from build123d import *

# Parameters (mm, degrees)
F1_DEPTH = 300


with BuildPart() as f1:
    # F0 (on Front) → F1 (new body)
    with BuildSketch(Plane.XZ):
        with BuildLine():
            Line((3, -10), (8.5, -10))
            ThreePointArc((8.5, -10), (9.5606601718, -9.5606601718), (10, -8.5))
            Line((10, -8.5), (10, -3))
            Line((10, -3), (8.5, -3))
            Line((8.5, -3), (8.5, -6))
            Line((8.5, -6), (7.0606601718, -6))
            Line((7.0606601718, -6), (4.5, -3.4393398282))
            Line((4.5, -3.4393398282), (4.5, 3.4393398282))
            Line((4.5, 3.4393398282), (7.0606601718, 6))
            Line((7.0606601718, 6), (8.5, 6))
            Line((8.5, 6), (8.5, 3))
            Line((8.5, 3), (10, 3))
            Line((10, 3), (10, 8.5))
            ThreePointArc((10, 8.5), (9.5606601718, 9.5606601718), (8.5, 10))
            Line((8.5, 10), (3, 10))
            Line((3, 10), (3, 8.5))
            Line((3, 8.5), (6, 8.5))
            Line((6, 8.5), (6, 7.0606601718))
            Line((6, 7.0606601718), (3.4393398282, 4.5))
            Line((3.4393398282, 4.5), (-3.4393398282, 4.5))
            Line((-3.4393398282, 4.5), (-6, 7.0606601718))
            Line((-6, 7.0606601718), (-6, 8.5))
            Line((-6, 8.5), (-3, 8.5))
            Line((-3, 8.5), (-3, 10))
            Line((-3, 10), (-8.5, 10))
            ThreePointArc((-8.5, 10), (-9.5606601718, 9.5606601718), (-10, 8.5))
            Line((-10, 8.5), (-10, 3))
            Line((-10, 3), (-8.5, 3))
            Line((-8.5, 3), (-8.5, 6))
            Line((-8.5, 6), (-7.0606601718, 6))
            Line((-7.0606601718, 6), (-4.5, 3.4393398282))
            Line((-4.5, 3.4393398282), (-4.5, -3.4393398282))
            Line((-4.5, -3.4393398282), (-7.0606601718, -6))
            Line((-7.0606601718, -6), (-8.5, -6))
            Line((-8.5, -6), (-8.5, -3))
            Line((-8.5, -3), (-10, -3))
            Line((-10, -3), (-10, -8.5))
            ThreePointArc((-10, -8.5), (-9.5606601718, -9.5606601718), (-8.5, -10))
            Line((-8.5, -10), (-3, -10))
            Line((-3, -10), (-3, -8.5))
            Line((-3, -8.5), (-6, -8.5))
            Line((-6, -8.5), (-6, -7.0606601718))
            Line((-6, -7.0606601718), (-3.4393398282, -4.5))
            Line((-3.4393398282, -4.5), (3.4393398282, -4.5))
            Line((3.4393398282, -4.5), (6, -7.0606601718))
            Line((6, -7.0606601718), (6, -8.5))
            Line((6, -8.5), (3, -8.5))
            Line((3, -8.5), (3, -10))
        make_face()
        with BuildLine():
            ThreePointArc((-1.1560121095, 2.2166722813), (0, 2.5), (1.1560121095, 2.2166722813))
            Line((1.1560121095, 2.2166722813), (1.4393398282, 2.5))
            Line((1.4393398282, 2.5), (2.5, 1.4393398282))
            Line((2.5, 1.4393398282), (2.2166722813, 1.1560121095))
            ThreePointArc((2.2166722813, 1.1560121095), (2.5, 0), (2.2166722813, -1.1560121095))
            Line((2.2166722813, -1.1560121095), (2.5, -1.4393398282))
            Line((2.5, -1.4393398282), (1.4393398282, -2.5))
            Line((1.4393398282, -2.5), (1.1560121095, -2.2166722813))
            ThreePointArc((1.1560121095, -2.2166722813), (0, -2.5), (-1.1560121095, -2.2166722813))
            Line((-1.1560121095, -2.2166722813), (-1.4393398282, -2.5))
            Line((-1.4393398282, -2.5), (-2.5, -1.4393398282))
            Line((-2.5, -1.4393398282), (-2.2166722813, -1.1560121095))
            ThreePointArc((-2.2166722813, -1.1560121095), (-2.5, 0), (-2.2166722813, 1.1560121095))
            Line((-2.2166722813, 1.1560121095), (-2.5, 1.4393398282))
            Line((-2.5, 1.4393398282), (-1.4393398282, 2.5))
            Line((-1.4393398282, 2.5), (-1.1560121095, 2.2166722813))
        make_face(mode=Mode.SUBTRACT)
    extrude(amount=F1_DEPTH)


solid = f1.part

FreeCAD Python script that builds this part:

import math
import FreeCAD as App
import Part
import Sketcher
from FreeCAD import Vector
Q = App.Units.Quantity

doc = App.newDocument("Part")
params = doc.addObject("Spreadsheet::Sheet", "Params")
for row, (alias, value) in enumerate([
    ("sketch1_radius", "1.5 mm"),
    ("sketch1_radius2", "2.5 mm"),
    ("sketch1_width", "3 mm"),
    ("sketch1_width2", "5.5 mm"),
    ("sketch1_length", "1.5 mm"),
    ("pad1_length", "300 mm"),
], start=1):
    params.set(f"A{row}", alias)
    params.set(f"B{row}", "=" + value)
    params.setAlias(f"B{row}", alias)

body = doc.addObject("PartDesign::Body", "Body")

sketch1 = body.newObject("Sketcher::SketchObject", "Sketch")
sketch1.AttachmentSupport = (doc.getObject("XZ_Plane"), [""])
sketch1.MapMode = "FlatFace"
sketch1.addGeometry(Part.LineSegment(Vector(3, -10, 0), Vector(8.5, -10, 0)), False)
sketch1.addGeometry(Part.ArcOfCircle(Part.Circle(Vector(8.5, -8.5, 0), Vector(0, 0, 1), 1.5), math.radians(-90), math.radians(0)), False)
sketch1.addGeometry(Part.LineSegment(Vector(10, -8.5, 0), Vector(10, -3, 0)), False)
sketch1.addGeometry(Part.LineSegment(Vector(10, -3, 0), Vector(8.5, -3, 0)), False)
sketch1.addGeometry(Part.LineSegment(Vector(8.5, -3, 0), Vector(8.5, -6, 0)), False)
sketch1.addGeometry(Part.LineSegment(Vector(8.5, -6, 0), Vector(7.06, -6, 0)), False)
sketch1.addGeometry(Part.LineSegment(Vector(7.06, -6, 0), Vector(4.5, -3.44, 0)), False)
sketch1.addGeometry(Part.LineSegment(Vector(4.5, -3.44, 0), Vector(4.5, 3.44, 0)), False)
sketch1.addGeometry(Part.LineSegment(Vector(4.5, 3.44, 0), Vector(7.06, 6, 0)), False)
sketch1.addGeometry(Part.LineSegment(Vector(7.06, 6, 0), Vector(8.5, 6, 0)), False)
sketch1.addGeometry(Part.LineSegment(Vector(8.5, 6, 0), Vector(8.5, 3, 0)), False)
sketch1.addGeometry(Part.LineSegment(Vector(8.5, 3, 0), Vector(10, 3, 0)), False)
sketch1.addGeometry(Part.LineSegment(Vector(10, 3, 0), Vector(10, 8.5, 0)), False)
sketch1.addGeometry(Part.ArcOfCircle(Part.Circle(Vector(8.5, 8.5, 0), Vector(0, 0, 1), 1.5), math.radians(0), math.radians(90)), False)
sketch1.addGeometry(Part.LineSegment(Vector(8.5, 10, 0), Vector(3, 10, 0)), False)
sketch1.addGeometry(Part.LineSegment(Vector(3, 10, 0), Vector(3, 8.5, 0)), False)
sketch1.addGeometry(Part.LineSegment(Vector(3, 8.5, 0), Vector(6, 8.5, 0)), False)
sketch1.addGeometry(Part.LineSegment(Vector(6, 8.5, 0), Vector(6, 7.06, 0)), False)
sketch1.addGeometry(Part.LineSegment(Vector(6, 7.06, 0), Vector(3.44, 4.5, 0)), False)
sketch1.addGeometry(Part.LineSegment(Vector(3.44, 4.5, 0), Vector(-3.44, 4.5, 0)), False)
sketch1.addGeometry(Part.LineSegment(Vector(-3.44, 4.5, 0), Vector(-6, 7.06, 0)), False)
sketch1.addGeometry(Part.LineSegment(Vector(-6, 7.06, 0), Vector(-6, 8.5, 0)), False)
sketch1.addGeometry(Part.LineSegment(Vector(-6, 8.5, 0), Vector(-3, 8.5, 0)), False)
sketch1.addGeometry(Part.LineSegment(Vector(-3, 8.5, 0), Vector(-3, 10, 0)), False)
sketch1.addGeometry(Part.LineSegment(Vector(-3, 10, 0), Vector(-8.5, 10, 0)), False)
sketch1.addGeometry(Part.ArcOfCircle(Part.Circle(Vector(-8.5, 8.5, 0), Vector(0, 0, 1), 1.5), math.radians(90), math.radians(180)), False)
sketch1.addGeometry(Part.LineSegment(Vector(-10, 8.5, 0), Vector(-10, 3, 0)), False)
sketch1.addGeometry(Part.LineSegment(Vector(-10, 3, 0), Vector(-8.5, 3, 0)), False)
sketch1.addGeometry(Part.LineSegment(Vector(-8.5, 3, 0), Vector(-8.5, 6, 0)), False)
sketch1.addGeometry(Part.LineSegment(Vector(-8.5, 6, 0), Vector(-7.06, 6, 0)), False)
sketch1.addGeometry(Part.LineSegment(Vector(-7.06, 6, 0), Vector(-4.5, 3.44, 0)), False)
sketch1.addGeometry(Part.LineSegment(Vector(-4.5, 3.44, 0), Vector(-4.5, -3.44, 0)), False)
sketch1.addGeometry(Part.LineSegment(Vector(-4.5, -3.44, 0), Vector(-7.06, -6, 0)), False)
sketch1.addGeometry(Part.LineSegment(Vector(-7.06, -6, 0), Vector(-8.5, -6, 0)), False)
sketch1.addGeometry(Part.LineSegment(Vector(-8.5, -6, 0), Vector(-8.5, -3, 0)), False)
sketch1.addGeometry(Part.LineSegment(Vector(-8.5, -3, 0), Vector(-10, -3, 0)), False)
sketch1.addGeometry(Part.LineSegment(Vector(-10, -3, 0), Vector(-10, -8.5, 0)), False)
sketch1.addGeometry(Part.ArcOfCircle(Part.Circle(Vector(-8.5, -8.5, 0), Vector(0, 0, 1), 1.5), math.radians(180), math.radians(270)), False)
sketch1.addGeometry(Part.LineSegment(Vector(-8.5, -10, 0), Vector(-3, -10, 0)), False)
sketch1.addGeometry(Part.LineSegment(Vector(-3, -10, 0), Vector(-3, -8.5, 0)), False)
sketch1.addGeometry(Part.LineSegment(Vector(-3, -8.5, 0), Vector(-6, -8.5, 0)), False)
sketch1.addGeometry(Part.LineSegment(Vector(-6, -8.5, 0), Vector(-6, -7.06, 0)), False)
sketch1.addGeometry(Part.LineSegment(Vector(-6, -7.06, 0), Vector(-3.44, -4.5, 0)), False)
sketch1.addGeometry(Part.LineSegment(Vector(-3.44, -4.5, 0), Vector(3.44, -4.5, 0)), False)
sketch1.addGeometry(Part.LineSegment(Vector(3.44, -4.5, 0), Vector(6, -7.06, 0)), False)
sketch1.addGeometry(Part.LineSegment(Vector(6, -7.06, 0), Vector(6, -8.5, 0)), False)
sketch1.addGeometry(Part.LineSegment(Vector(6, -8.5, 0), Vector(3, -8.5, 0)), False)
sketch1.addGeometry(Part.LineSegment(Vector(3, -8.5, 0), Vector(3, -10, 0)), False)
sketch1.addGeometry(Part.LineSegment(Vector(-1.44, 2.5, 0), Vector(-1.16, 2.22, 0)), False)
sketch1.addGeometry(Part.ArcOfCircle(Part.Circle(Vector(0, 0, 0), Vector(0, 0, 1), 2.5), math.radians(62), math.radians(118)), False)
sketch1.addGeometry(Part.LineSegment(Vector(1.16, 2.22, 0), Vector(1.44, 2.5, 0)), False)
sketch1.addGeometry(Part.LineSegment(Vector(1.44, 2.5, 0), Vector(2.5, 1.44, 0)), False)
sketch1.addGeometry(Part.LineSegment(Vector(2.5, 1.44, 0), Vector(2.22, 1.16, 0)), False)
sketch1.addGeometry(Part.ArcOfCircle(Part.Circle(Vector(0, 0, 0), Vector(0, 0, 1), 2.5), math.radians(-28), math.radians(28)), False)
sketch1.addGeometry(Part.LineSegment(Vector(2.22, -1.16, 0), Vector(2.5, -1.44, 0)), False)
sketch1.addGeometry(Part.LineSegment(Vector(2.5, -1.44, 0), Vector(1.44, -2.5, 0)), False)
sketch1.addGeometry(Part.LineSegment(Vector(1.44, -2.5, 0), Vector(1.16, -2.22, 0)), False)
sketch1.addGeometry(Part.ArcOfCircle(Part.Circle(Vector(0, 0, 0), Vector(0, 0, 1), 2.5), math.radians(-118), math.radians(-62)), False)
sketch1.addGeometry(Part.LineSegment(Vector(-1.16, -2.22, 0), Vector(-1.44, -2.5, 0)), False)
sketch1.addGeometry(Part.LineSegment(Vector(-1.44, -2.5, 0), Vector(-2.5, -1.44, 0)), False)
sketch1.addGeometry(Part.LineSegment(Vector(-2.5, -1.44, 0), Vector(-2.22, -1.16, 0)), False)
sketch1.addGeometry(Part.ArcOfCircle(Part.Circle(Vector(0, 0, 0), Vector(0, 0, 1), 2.5), math.radians(152), math.radians(208)), False)
sketch1.addGeometry(Part.LineSegment(Vector(-2.22, 1.16, 0), Vector(-2.5, 1.44, 0)), False)
sketch1.addGeometry(Part.LineSegment(Vector(-2.5, 1.44, 0), Vector(-1.44, 2.5, 0)), False)
sketch1.addConstraint(Sketcher.Constraint("Tangent", 0, 2, 1, 1))
sketch1.addConstraint(Sketcher.Constraint("Tangent", 1, 2, 2, 1))
sketch1.addConstraint(Sketcher.Constraint("Coincident", 2, 2, 3, 1))
sketch1.addConstraint(Sketcher.Constraint("Coincident", 3, 2, 4, 1))
sketch1.addConstraint(Sketcher.Constraint("Coincident", 4, 2, 5, 1))
sketch1.addConstraint(Sketcher.Constraint("Coincident", 5, 2, 6, 1))
sketch1.addConstraint(Sketcher.Constraint("Coincident", 6, 2, 7, 1))
sketch1.addConstraint(Sketcher.Constraint("Coincident", 7, 2, 8, 1))
sketch1.addConstraint(Sketcher.Constraint("Coincident", 8, 2, 9, 1))
sketch1.addConstraint(Sketcher.Constraint("Coincident", 9, 2, 10, 1))
sketch1.addConstraint(Sketcher.Constraint("Coincident", 10, 2, 11, 1))
sketch1.addConstraint(Sketcher.Constraint("Coincident", 11, 2, 12, 1))
sketch1.addConstraint(Sketcher.Constraint("Tangent", 12, 2, 13, 1))
sketch1.addConstraint(Sketcher.Constraint("Tangent", 13, 2, 14, 1))
sketch1.addConstraint(Sketcher.Constraint("Coincident", 14, 2, 15, 1))
sketch1.addConstraint(Sketcher.Constraint("Coincident", 15, 2, 16, 1))
sketch1.addConstraint(Sketcher.Constraint("Coincident", 16, 2, 17, 1))
sketch1.addConstraint(Sketcher.Constraint("Coincident", 17, 2, 18, 1))
sketch1.addConstraint(Sketcher.Constraint("Coincident", 18, 2, 19, 1))
sketch1.addConstraint(Sketcher.Constraint("Coincident", 19, 2, 20, 1))
sketch1.addConstraint(Sketcher.Constraint("Coincident", 20, 2, 21, 1))
sketch1.addConstraint(Sketcher.Constraint("Coincident", 21, 2, 22, 1))
sketch1.addConstraint(Sketcher.Constraint("Coincident", 22, 2, 23, 1))
sketch1.addConstraint(Sketcher.Constraint("Coincident", 23, 2, 24, 1))
sketch1.addConstraint(Sketcher.Constraint("Tangent", 24, 2, 25, 1))
sketch1.addConstraint(Sketcher.Constraint("Tangent", 25, 2, 26, 1))
sketch1.addConstraint(Sketcher.Constraint("Coincident", 26, 2, 27, 1))
sketch1.addConstraint(Sketcher.Constraint("Coincident", 27, 2, 28, 1))
sketch1.addConstraint(Sketcher.Constraint("Coincident", 28, 2, 29, 1))
sketch1.addConstraint(Sketcher.Constraint("Coincident", 29, 2, 30, 1))
sketch1.addConstraint(Sketcher.Constraint("Coincident", 30, 2, 31, 1))
sketch1.addConstraint(Sketcher.Constraint("Coincident", 31, 2, 32, 1))
sketch1.addConstraint(Sketcher.Constraint("Coincident", 32, 2, 33, 1))
sketch1.addConstraint(Sketcher.Constraint("Coincident", 33, 2, 34, 1))
sketch1.addConstraint(Sketcher.Constraint("Coincident", 34, 2, 35, 1))
sketch1.addConstraint(Sketcher.Constraint("Coincident", 35, 2, 36, 1))
sketch1.addConstraint(Sketcher.Constraint("Tangent", 36, 2, 37, 1))
sketch1.addConstraint(Sketcher.Constraint("Tangent", 37, 2, 38, 1))
sketch1.addConstraint(Sketcher.Constraint("Coincident", 38, 2, 39, 1))
sketch1.addConstraint(Sketcher.Constraint("Coincident", 39, 2, 40, 1))
sketch1.addConstraint(Sketcher.Constraint("Coincident", 40, 2, 41, 1))
sketch1.addConstraint(Sketcher.Constraint("Coincident", 41, 2, 42, 1))
sketch1.addConstraint(Sketcher.Constraint("Coincident", 42, 2, 43, 1))
sketch1.addConstraint(Sketcher.Constraint("Coincident", 43, 2, 44, 1))
sketch1.addConstraint(Sketcher.Constraint("Coincident", 44, 2, 45, 1))
sketch1.addConstraint(Sketcher.Constraint("Coincident", 45, 2, 46, 1))
sketch1.addConstraint(Sketcher.Constraint("Coincident", 46, 2, 47, 1))
sketch1.addConstraint(Sketcher.Constraint("Coincident", 47, 2, 0, 1))
sketch1.addConstraint(Sketcher.Constraint("Coincident", 48, 2, 49, 2))
sketch1.addConstraint(Sketcher.Constraint("Coincident", 49, 1, 50, 1))
sketch1.addConstraint(Sketcher.Constraint("Coincident", 50, 2, 51, 1))
sketch1.addConstraint(Sketcher.Constraint("Coincident", 51, 2, 52, 1))
sketch1.addConstraint(Sketcher.Constraint("Coincident", 52, 2, 53, 2))
sketch1.addConstraint(Sketcher.Constraint("Coincident", 53, 1, 54, 1))
sketch1.addConstraint(Sketcher.Constraint("Coincident", 54, 2, 55, 1))
sketch1.addConstraint(Sketcher.Constraint("Coincident", 55, 2, 56, 1))
sketch1.addConstraint(Sketcher.Constraint("Coincident", 56, 2, 57, 2))
sketch1.addConstraint(Sketcher.Constraint("Coincident", 57, 1, 58, 1))
sketch1.addConstraint(Sketcher.Constraint("Coincident", 58, 2, 59, 1))
sketch1.addConstraint(Sketcher.Constraint("Coincident", 59, 2, 60, 1))
sketch1.addConstraint(Sketcher.Constraint("Coincident", 60, 2, 61, 2))
sketch1.addConstraint(Sketcher.Constraint("Coincident", 61, 1, 62, 1))
sketch1.addConstraint(Sketcher.Constraint("Coincident", 62, 2, 63, 1))
sketch1.addConstraint(Sketcher.Constraint("Coincident", 63, 2, 48, 1))
sketch1.addConstraint(Sketcher.Constraint("Horizontal", 0))
sketch1.addConstraint(Sketcher.Constraint("Vertical", 2))
sketch1.addConstraint(Sketcher.Constraint("Horizontal", 3))
sketch1.addConstraint(Sketcher.Constraint("Vertical", 4))
sketch1.addConstraint(Sketcher.Constraint("Horizontal", 5))
sketch1.addConstraint(Sketcher.Constraint("Vertical", 7))
sketch1.addConstraint(Sketcher.Constraint("Horizontal", 9))
sketch1.addConstraint(Sketcher.Constraint("Vertical", 10))
sketch1.addConstraint(Sketcher.Constraint("Horizontal", 11))
sketch1.addConstraint(Sketcher.Constraint("Vertical", 12))
sketch1.addConstraint(Sketcher.Constraint("Horizontal", 14))
sketch1.addConstraint(Sketcher.Constraint("Vertical", 15))
sketch1.addConstraint(Sketcher.Constraint("Horizontal", 16))
sketch1.addConstraint(Sketcher.Constraint("Vertical", 17))
sketch1.addConstraint(Sketcher.Constraint("Horizontal", 19))
sketch1.addConstraint(Sketcher.Constraint("Vertical", 21))
sketch1.addConstraint(Sketcher.Constraint("Horizontal", 22))
sketch1.addConstraint(Sketcher.Constraint("Vertical", 23))
sketch1.addConstraint(Sketcher.Constraint("Horizontal", 24))
sketch1.addConstraint(Sketcher.Constraint("Vertical", 26))
sketch1.addConstraint(Sketcher.Constraint("Horizontal", 27))
sketch1.addConstraint(Sketcher.Constraint("Vertical", 28))
sketch1.addConstraint(Sketcher.Constraint("Horizontal", 29))
sketch1.addConstraint(Sketcher.Constraint("Vertical", 31))
sketch1.addConstraint(Sketcher.Constraint("Horizontal", 33))
sketch1.addConstraint(Sketcher.Constraint("Vertical", 34))
sketch1.addConstraint(Sketcher.Constraint("Horizontal", 35))
sketch1.addConstraint(Sketcher.Constraint("Vertical", 36))
sketch1.addConstraint(Sketcher.Constraint("Horizontal", 38))
sketch1.addConstraint(Sketcher.Constraint("Vertical", 39))
sketch1.addConstraint(Sketcher.Constraint("Horizontal", 40))
sketch1.addConstraint(Sketcher.Constraint("Vertical", 41))
sketch1.addConstraint(Sketcher.Constraint("Horizontal", 43))
sketch1.addConstraint(Sketcher.Constraint("Vertical", 45))
sketch1.addConstraint(Sketcher.Constraint("Horizontal", 46))
sketch1.addConstraint(Sketcher.Constraint("Vertical", 47))
sketch1.addConstraint(Sketcher.Constraint("Coincident", 49, 3, -1, 1))
sketch1.addConstraint(Sketcher.Constraint("Coincident", 53, 3, -1, 1))
sketch1.addConstraint(Sketcher.Constraint("Coincident", 57, 3, -1, 1))
sketch1.addConstraint(Sketcher.Constraint("Coincident", 61, 3, -1, 1))
sketch1.addConstraint(Sketcher.Constraint("Equal", 1, 13))
sketch1.addConstraint(Sketcher.Constraint("Equal", 13, 25))
sketch1.addConstraint(Sketcher.Constraint("Equal", 25, 37))
sketch1.addConstraint(Sketcher.Constraint("Equal", 49, 53))
sketch1.addConstraint(Sketcher.Constraint("Equal", 53, 57))
sketch1.addConstraint(Sketcher.Constraint("Equal", 57, 61))
sketch1.addConstraint(Sketcher.Constraint("Symmetric", 1, 3, 25, 3, -1, 1))
sketch1.addConstraint(Sketcher.Constraint("Symmetric", 13, 3, 37, 3, -1, 1))
sketch1.addConstraint(Sketcher.Constraint("Symmetric", 3, 2, 27, 2, -1, 1))
sketch1.addConstraint(Sketcher.Constraint("Symmetric", 5, 2, 29, 2, -1, 1))
sketch1.addConstraint(Sketcher.Constraint("Symmetric", 6, 2, 30, 2, -1, 1))
sketch1.addConstraint(Sketcher.Constraint("Symmetric", 8, 2, 32, 2, -1, 1))
sketch1.addConstraint(Sketcher.Constraint("Symmetric", 10, 2, 34, 2, -1, 1))
sketch1.addConstraint(Sketcher.Constraint("Symmetric", 15, 2, 39, 2, -1, 1))
sketch1.addConstraint(Sketcher.Constraint("Symmetric", 17, 2, 41, 2, -1, 1))
sketch1.addConstraint(Sketcher.Constraint("Symmetric", 18, 2, 42, 2, -1, 1))
sketch1.addConstraint(Sketcher.Constraint("Symmetric", 20, 2, 44, 2, -1, 1))
sketch1.addConstraint(Sketcher.Constraint("Symmetric", 22, 2, 46, 2, -1, 1))
sketch1.addConstraint(Sketcher.Constraint("Symmetric", 50, 2, 58, 2, -1, 1))
sketch1.addConstraint(Sketcher.Constraint("Symmetric", 51, 2, 59, 2, -1, 1))
sketch1.addConstraint(Sketcher.Constraint("Symmetric", 54, 2, 62, 2, -1, 1))
sketch1.addConstraint(Sketcher.Constraint("Symmetric", 55, 2, 63, 2, -1, 1))
sketch1.addConstraint(Sketcher.Constraint("Symmetric", 13, 3, 25, 3, -2))
sketch1.addConstraint(Sketcher.Constraint("Symmetric", 17, 2, 20, 2, -2))
sketch1.addConstraint(Sketcher.Constraint("Symmetric", 15, 2, 22, 2, -2))
sketch1.addConstraint(Sketcher.Constraint("Symmetric", 10, 2, 27, 2, -2))
sketch1.addConstraint(Sketcher.Constraint("Symmetric", 8, 2, 29, 2, -2))
sketch1.addConstraint(Sketcher.Constraint("Symmetric", 55, 2, 58, 2, -2))
sketch1.addConstraint(Sketcher.Constraint("Symmetric", 54, 2, 59, 2, -2))
sketch1.addConstraint(Sketcher.Constraint("Perpendicular", 6, 8))
sketch1.addConstraint(Sketcher.Constraint("Parallel", 8, 18))
sketch1.addConstraint(Sketcher.Constraint("Perpendicular", 18, 20))
sketch1.addConstraint(Sketcher.Constraint("Perpendicular", 30, 32))
sketch1.addConstraint(Sketcher.Constraint("Perpendicular", 42, 44))
sketch1.addConstraint(Sketcher.Constraint("Parallel", 44, 48))
sketch1.addConstraint(Sketcher.Constraint("Perpendicular", 48, 50))
sketch1.addConstraint(Sketcher.Constraint("Perpendicular", 50, 51))
sketch1.addConstraint(Sketcher.Constraint("Perpendicular", 51, 52))
sketch1.addConstraint(Sketcher.Constraint("Perpendicular", 52, 54))
sketch1.addConstraint(Sketcher.Constraint("Perpendicular", 54, 55))
sketch1.addConstraint(Sketcher.Constraint("Perpendicular", 55, 56))
sketch1.addConstraint(Sketcher.Constraint("Perpendicular", 56, 58))
sketch1.addConstraint(Sketcher.Constraint("Perpendicular", 59, 60))
sketch1.addConstraint(Sketcher.Constraint("Perpendicular", 60, 62))
sketch1.addConstraint(Sketcher.Constraint("Horizontal", 12, 2, 15, 2))
sketch1.addConstraint(Sketcher.Constraint("Vertical", 0, 2, 3, 2))
sketch1.addConstraint(Sketcher.Constraint("Equal", 38, 2))
sketch1.addConstraint(Sketcher.Constraint("Equal", 46, 4))
sketch1.addConstraint(Sketcher.Constraint("Equal", 43, 7))
sketch1.addConstraint(Sketcher.Constraint("Equal", 33, 17))
sketch1.addConstraint(Sketcher.Constraint("Equal", 8, 18))
sketch1.addConstraint(Sketcher.Constraint("Equal", 50, 52))
sketch1.addConstraint(Sketcher.Constraint("Radius", 1, Q("1.5 mm")))
sketch1.addConstraint(Sketcher.Constraint("Radius", 49, Q("2.5 mm")))
sketch1.addConstraint(Sketcher.Constraint("DistanceX", 16, 1, 16, 2, Q("3 mm")))
sketch1.addConstraint(Sketcher.Constraint("DistanceX", 0, 1, 0, 2, Q("5.5 mm")))
sketch1.addConstraint(Sketcher.Constraint("DistanceY", 0, 2, -1, 1, Q("10 mm")))
sketch1.addConstraint(Sketcher.Constraint("Distance", 51, Q("1.5 mm")))
sketch1.addConstraint(Sketcher.Constraint("DistanceX", -1, 1, 6, 2, Q("4.5 mm")))
sketch1.addConstraint(Sketcher.Constraint("DistanceY", -1, 1, 50, 2, Q("2.5 mm")))
sketch1.addConstraint(Sketcher.Constraint("DistanceX", 5, 2, 5, 1, Q("1.43934 mm")))
sketch1.setExpression("Constraints[156]", "Params.sketch1_radius")
sketch1.setExpression("Constraints[157]", "Params.sketch1_radius2")
sketch1.setExpression("Constraints[158]", "Params.sketch1_width")
sketch1.setExpression("Constraints[159]", "Params.sketch1_width2")
sketch1.setExpression("Constraints[161]", "Params.sketch1_length")
pad1 = body.newObject("PartDesign::Pad", "Pad")
pad1.Profile = sketch1
pad1.setExpression("Length", "Params.pad1_length")

doc.recompute()
